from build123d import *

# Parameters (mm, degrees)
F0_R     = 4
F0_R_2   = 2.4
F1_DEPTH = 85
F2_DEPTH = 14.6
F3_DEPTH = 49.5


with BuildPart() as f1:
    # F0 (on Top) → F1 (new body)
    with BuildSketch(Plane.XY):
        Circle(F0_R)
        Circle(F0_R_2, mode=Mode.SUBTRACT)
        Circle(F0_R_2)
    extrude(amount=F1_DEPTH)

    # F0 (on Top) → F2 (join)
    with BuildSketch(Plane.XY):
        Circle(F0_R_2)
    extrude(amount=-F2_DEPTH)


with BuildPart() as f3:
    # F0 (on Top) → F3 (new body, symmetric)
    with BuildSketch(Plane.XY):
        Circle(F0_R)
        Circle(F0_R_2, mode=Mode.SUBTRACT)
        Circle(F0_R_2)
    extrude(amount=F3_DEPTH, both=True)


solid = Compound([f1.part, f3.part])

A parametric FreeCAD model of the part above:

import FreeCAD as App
import Part
import Sketcher
Q = App.Units.Quantity

doc = App.newDocument("Part")
body = doc.addObject("PartDesign::Body", "Body")

# Sketch on XY plane
sketch1 = body.newObject("Sketcher::SketchObject", "Sketch")
sketch1.AttachmentSupport = (doc.getObject("XY_Plane"), [""])
sketch1.MapMode = "FlatFace"
sketch1.addGeometry(Part.Circle(App.Vector(0, 0, 0), App.Vector(0, 0, 1), 4), False)
sketch1.addConstraint([
    Sketcher.Constraint("Coincident", 0, 3, -1, 1),
    Sketcher.Constraint("Diameter", 0, Q("8 mm")),
])
pad1 = body.newObject("PartDesign::Pad", "Pad")
pad1.Profile = sketch1
pad1.Length = 85

# Sketch on XY plane
sketch2 = body.newObject("Sketcher::SketchObject", "Sketch001")
sketch2.AttachmentSupport = (doc.getObject("XY_Plane"), [""])
sketch2.MapMode = "FlatFace"
sketch2.addGeometry(Part.Circle(App.Vector(0, 0, 0), App.Vector(0, 0, 1), 2.4), False)
sketch2.addConstraint([
    Sketcher.Constraint("Coincident", 0, 3, -1, 1),
    Sketcher.Constraint("Diameter", 0, Q("4.8 mm")),
])
pad2 = body.newObject("PartDesign::Pad", "Pad001")
pad2.Profile = sketch2
pad2.Length = 14.6
pad2.Reversed = True
body2 = doc.addObject("PartDesign::Body", "Body001")

# Sketch on XY plane
sketch3 = body2.newObject("Sketcher::SketchObject", "Sketch002")
sketch3.AttachmentSupport = (doc.getObject("XY_Plane001"), [""])
sketch3.MapMode = "FlatFace"
sketch3.addGeometry(Part.Circle(App.Vector(0, 0, 0), App.Vector(0, 0, 1), 4), False)
sketch3.addConstraint([
    Sketcher.Constraint("Coincident", 0, 3, -1, 1),
    Sketcher.Constraint("Diameter", 0, Q("8 mm")),
])
pad3 = body2.newObject("PartDesign::Pad", "Pad002")
pad3.Profile = sketch3
pad3.Length = 99
pad3.Midplane = True

doc.recompute()
